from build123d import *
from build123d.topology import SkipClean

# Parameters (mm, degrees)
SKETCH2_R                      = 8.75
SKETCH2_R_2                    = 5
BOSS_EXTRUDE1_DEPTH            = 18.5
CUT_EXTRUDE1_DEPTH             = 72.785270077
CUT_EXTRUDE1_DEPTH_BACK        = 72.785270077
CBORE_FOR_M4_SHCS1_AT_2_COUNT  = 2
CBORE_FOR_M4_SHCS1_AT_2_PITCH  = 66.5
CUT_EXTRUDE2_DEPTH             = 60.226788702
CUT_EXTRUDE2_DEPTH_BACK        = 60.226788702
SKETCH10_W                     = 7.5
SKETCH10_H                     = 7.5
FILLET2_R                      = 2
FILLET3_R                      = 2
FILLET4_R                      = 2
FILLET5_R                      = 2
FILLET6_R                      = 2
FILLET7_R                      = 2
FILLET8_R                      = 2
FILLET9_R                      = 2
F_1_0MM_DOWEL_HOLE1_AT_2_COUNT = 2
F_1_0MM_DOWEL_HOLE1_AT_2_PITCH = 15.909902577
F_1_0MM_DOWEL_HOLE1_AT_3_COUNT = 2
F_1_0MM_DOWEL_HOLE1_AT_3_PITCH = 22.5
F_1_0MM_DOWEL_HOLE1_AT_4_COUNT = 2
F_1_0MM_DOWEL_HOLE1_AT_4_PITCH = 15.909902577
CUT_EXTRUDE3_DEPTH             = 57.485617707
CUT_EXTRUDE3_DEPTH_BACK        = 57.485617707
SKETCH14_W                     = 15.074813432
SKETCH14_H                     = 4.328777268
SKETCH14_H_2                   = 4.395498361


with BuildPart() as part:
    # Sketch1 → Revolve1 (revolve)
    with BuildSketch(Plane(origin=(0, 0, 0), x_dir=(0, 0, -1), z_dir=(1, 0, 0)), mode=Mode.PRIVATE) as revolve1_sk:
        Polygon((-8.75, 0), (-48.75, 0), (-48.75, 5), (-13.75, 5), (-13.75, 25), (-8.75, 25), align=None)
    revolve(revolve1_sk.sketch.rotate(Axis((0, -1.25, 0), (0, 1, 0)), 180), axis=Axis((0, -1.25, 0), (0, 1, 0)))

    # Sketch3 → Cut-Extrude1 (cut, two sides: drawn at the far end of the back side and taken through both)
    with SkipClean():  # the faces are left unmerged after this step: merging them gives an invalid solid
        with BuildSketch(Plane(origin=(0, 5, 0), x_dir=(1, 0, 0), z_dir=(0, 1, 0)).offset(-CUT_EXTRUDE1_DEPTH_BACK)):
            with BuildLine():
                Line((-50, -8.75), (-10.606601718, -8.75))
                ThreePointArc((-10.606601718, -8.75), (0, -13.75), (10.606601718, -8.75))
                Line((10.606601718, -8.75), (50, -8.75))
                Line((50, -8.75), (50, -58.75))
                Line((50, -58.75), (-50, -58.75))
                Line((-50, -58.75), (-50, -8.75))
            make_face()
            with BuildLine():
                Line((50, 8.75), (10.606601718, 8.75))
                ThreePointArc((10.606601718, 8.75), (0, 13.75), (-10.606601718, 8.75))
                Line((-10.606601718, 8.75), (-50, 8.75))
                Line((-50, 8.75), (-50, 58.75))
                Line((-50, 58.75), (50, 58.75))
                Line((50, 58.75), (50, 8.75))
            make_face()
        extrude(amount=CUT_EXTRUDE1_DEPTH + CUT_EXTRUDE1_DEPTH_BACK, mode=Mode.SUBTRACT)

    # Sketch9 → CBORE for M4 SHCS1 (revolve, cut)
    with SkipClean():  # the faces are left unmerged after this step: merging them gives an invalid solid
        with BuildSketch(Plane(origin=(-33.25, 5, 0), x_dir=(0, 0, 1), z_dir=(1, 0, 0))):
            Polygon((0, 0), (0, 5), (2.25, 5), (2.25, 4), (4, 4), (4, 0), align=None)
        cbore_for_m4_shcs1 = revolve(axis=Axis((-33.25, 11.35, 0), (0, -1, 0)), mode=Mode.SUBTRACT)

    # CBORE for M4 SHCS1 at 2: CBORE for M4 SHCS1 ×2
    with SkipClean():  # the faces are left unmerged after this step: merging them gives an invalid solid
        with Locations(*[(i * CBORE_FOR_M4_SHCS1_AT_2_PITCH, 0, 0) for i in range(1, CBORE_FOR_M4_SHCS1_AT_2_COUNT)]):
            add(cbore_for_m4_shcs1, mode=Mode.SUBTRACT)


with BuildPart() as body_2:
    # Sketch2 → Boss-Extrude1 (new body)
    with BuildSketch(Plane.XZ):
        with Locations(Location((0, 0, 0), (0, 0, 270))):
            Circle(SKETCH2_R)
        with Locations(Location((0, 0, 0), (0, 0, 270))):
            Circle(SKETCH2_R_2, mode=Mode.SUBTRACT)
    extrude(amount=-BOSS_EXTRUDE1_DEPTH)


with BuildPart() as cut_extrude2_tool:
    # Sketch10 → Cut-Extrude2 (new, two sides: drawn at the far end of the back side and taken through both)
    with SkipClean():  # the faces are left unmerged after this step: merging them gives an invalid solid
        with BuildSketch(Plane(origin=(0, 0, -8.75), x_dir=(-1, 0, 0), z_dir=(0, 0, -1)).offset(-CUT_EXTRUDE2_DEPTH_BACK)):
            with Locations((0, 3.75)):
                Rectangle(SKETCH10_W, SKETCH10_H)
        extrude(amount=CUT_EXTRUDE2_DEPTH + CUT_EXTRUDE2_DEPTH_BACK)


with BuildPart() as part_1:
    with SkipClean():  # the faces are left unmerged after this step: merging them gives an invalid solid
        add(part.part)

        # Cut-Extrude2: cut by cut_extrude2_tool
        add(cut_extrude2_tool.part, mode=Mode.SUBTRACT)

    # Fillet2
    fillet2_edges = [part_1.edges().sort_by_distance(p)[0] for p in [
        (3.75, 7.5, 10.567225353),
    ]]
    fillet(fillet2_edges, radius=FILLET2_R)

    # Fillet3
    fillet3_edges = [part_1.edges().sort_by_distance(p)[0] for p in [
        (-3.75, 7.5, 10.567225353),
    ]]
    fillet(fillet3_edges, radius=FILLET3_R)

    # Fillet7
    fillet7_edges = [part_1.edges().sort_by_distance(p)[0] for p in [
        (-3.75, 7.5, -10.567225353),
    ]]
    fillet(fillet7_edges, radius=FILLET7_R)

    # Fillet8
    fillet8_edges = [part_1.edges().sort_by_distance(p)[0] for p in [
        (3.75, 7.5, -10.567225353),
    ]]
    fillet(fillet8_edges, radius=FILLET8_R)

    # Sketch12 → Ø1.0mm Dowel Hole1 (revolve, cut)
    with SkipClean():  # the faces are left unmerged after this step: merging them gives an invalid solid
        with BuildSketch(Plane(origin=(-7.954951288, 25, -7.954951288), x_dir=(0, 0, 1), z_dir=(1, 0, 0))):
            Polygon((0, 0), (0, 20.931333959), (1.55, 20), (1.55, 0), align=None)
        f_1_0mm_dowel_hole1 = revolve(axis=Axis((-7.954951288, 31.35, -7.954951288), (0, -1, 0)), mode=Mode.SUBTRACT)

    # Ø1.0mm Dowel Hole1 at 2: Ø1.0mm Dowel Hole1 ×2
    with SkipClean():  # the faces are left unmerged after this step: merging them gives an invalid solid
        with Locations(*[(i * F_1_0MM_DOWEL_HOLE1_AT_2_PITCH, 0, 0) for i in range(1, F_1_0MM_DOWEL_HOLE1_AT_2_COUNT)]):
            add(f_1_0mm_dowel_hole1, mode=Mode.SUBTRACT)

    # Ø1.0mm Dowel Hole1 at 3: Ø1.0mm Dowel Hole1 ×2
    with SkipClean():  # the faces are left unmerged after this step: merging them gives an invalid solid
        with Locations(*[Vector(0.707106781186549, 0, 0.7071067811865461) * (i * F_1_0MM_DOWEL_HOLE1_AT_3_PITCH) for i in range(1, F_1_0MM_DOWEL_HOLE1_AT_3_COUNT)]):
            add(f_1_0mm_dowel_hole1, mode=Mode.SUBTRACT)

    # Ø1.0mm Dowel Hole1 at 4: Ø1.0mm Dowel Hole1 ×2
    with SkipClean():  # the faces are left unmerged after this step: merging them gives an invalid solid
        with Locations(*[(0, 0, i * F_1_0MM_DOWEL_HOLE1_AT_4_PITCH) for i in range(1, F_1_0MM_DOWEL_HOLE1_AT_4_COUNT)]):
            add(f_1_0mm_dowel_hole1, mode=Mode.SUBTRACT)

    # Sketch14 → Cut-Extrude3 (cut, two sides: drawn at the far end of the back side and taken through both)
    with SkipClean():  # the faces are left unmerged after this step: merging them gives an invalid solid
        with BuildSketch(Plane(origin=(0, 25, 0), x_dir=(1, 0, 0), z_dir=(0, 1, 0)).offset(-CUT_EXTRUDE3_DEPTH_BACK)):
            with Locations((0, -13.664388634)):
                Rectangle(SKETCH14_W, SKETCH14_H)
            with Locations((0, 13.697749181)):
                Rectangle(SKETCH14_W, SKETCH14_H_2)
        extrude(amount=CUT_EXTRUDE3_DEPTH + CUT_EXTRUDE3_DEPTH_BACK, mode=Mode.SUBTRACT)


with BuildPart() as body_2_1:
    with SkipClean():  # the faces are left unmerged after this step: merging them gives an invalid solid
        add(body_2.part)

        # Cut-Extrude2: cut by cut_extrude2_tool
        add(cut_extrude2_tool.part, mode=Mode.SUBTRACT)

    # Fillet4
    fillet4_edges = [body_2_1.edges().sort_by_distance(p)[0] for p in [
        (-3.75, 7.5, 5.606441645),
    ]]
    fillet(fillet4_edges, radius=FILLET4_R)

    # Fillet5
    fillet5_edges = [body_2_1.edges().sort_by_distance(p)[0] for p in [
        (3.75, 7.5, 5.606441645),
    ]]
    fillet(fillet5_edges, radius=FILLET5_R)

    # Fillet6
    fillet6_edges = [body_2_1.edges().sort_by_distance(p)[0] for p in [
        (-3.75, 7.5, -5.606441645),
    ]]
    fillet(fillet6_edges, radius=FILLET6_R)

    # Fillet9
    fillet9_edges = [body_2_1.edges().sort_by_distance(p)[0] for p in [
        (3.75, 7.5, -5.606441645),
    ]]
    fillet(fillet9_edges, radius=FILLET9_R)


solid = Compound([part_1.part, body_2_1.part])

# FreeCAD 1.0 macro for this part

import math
import FreeCAD as App
import Part
import Sketcher
from FreeCAD import Vector
Q = App.Units.Quantity


def edges_at(feature, points):
    """Names of the edges that pass closest to the given points."""
    edges = feature.Shape.Edges
    near = lambda p: min(range(len(edges)), key=lambda i: edges[i].distToShape(Part.Vertex(*p))[0])
    return sorted({f"Edge{near(p) + 1}" for p in points})

doc = App.newDocument("Part")
body = doc.addObject("PartDesign::Body", "Body")

# Sketch on YZ plane
sketch1 = body.newObject("Sketcher::SketchObject", "Sketch")
sketch1.AttachmentSupport = (doc.getObject("YZ_Plane"), [""])
sketch1.MapMode = "FlatFace"
sketch1.addGeometry([
    Part.LineSegment(Vector(0, 48.75, 0), Vector(0, 8.75, 0)),  # 0
    Part.LineSegment(Vector(0, 8.75, 0), Vector(25, 8.75, 0)),  # 1
    Part.LineSegment(Vector(25, 8.75, 0), Vector(25, 13.75, 0)),  # 2
    Part.LineSegment(Vector(25, 13.75, 0), Vector(5, 13.75, 0)),  # 3
    Part.LineSegment(Vector(5, 13.75, 0), Vector(5, 48.75, 0)),  # 4
    Part.LineSegment(Vector(5, 48.75, 0), Vector(0, 48.75, 0)),  # 5
], False)
sketch1.addConstraint([
    Sketcher.Constraint("Coincident", 0, 2, 1, 1),
    Sketcher.Constraint("Coincident", 1, 2, 2, 1),
    Sketcher.Constraint("Coincident", 2, 2, 3, 1),
    Sketcher.Constraint("Coincident", 3, 2, 4, 1),
    Sketcher.Constraint("Coincident", 4, 2, 5, 1),
    Sketcher.Constraint("Coincident", 5, 2, 0, 1),
    Sketcher.Constraint("Vertical", 0),
    Sketcher.Constraint("Horizontal", 1),
    Sketcher.Constraint("Vertical", 2),
    Sketcher.Constraint("Horizontal", 3),
    Sketcher.Constraint("Vertical", 4),
    Sketcher.Constraint("Horizontal", 5),
    Sketcher.Constraint("PointOnObject", 0, 2, -2),
    Sketcher.Constraint("Equal", 5, 2),
    Sketcher.Constraint("DistanceX", 1, 1, 1, 2, 25.0),
    Sketcher.Constraint("DistanceX", 3, 2, 3, 1, 20.0),
    Sketcher.Constraint("DistanceY", 0, 2, 0, 1, 40.0),
    Sketcher.Constraint("DistanceY", -1, 1, 0, 2, 8.75),
])
revolution = body.newObject("PartDesign::Revolution", "Revolution")
revolution.Profile = sketch1
revolution.ReferenceAxis = (sketch1, ["H_Axis"])
revolution.Angle = 360

# Sketch on XZ plane
sketch2 = body.newObject("Sketcher::SketchObject", "Sketch001")
sketch2.AttachmentSupport = (doc.getObject("XZ_Plane"), [""])
sketch2.MapMode = "FlatFace"
sketch2.AttachmentOffset = App.Placement(Vector(0, 0, -5), App.Rotation())
sketch2.addGeometry([
    Part.LineSegment(Vector(-10.606602, 8.75, 0), Vector(-50, 8.75, 0)),  # 0
    Part.LineSegment(Vector(-50, 8.75, 0), Vector(-50, 58.75, 0)),  # 1
    Part.LineSegment(Vector(-50, 58.75, 0), Vector(50, 58.75, 0)),  # 2
    Part.LineSegment(Vector(50, 58.75, 0), Vector(50, 8.75, 0)),  # 3
    Part.LineSegment(Vector(50, 8.75, 0), Vector(10.606602, 8.75, 0)),  # 4
    Part.ArcOfCircle(Part.Circle(Vector(0, 0, 0), Vector(0, 0, 1), 13.75), math.radians(39.521196), math.radians(140.478804)),  # 5
    Part.LineSegment(Vector(10.606602, -8.75, 0), Vector(50, -8.75, 0)),  # 6
    Part.LineSegment(Vector(50, -8.75, 0), Vector(50, -58.75, 0)),  # 7
    Part.LineSegment(Vector(50, -58.75, 0), Vector(-50, -58.75, 0)),  # 8
    Part.LineSegment(Vector(-50, -58.75, 0), Vector(-50, -8.75, 0)),  # 9
    Part.LineSegment(Vector(-50, -8.75, 0), Vector(-10.606602, -8.75, 0)),  # 10
    Part.ArcOfCircle(Part.Circle(Vector(0, 0, 0), Vector(0, 0, 1), 13.75), math.radians(-140.478804), math.radians(-39.521196)),  # 11
], False)
sketch2.addConstraint([
    Sketcher.Constraint("Coincident", 0, 2, 1, 1),
    Sketcher.Constraint("Coincident", 1, 2, 2, 1),
    Sketcher.Constraint("Coincident", 2, 2, 3, 1),
    Sketcher.Constraint("Coincident", 3, 2, 4, 1),
    Sketcher.Constraint("Coincident", 4, 2, 5, 1),
    Sketcher.Constraint("Coincident", 5, 2, 0, 1),
    Sketcher.Constraint("Coincident", 6, 2, 7, 1),
    Sketcher.Constraint("Coincident", 7, 2, 8, 1),
    Sketcher.Constraint("Coincident", 8, 2, 9, 1),
    Sketcher.Constraint("Coincident", 9, 2, 10, 1),
    Sketcher.Constraint("Coincident", 10, 2, 11, 1),
    Sketcher.Constraint("Coincident", 11, 2, 6, 1),
    Sketcher.Constraint("Horizontal", 0),
    Sketcher.Constraint("Vertical", 1),
    Sketcher.Constraint("Horizontal", 2),
    Sketcher.Constraint("Vertical", 3),
    Sketcher.Constraint("Horizontal", 4),
    Sketcher.Constraint("Horizontal", 6),
    Sketcher.Constraint("Vertical", 7),
    Sketcher.Constraint("Horizontal", 8),
    Sketcher.Constraint("Vertical", 9),
    Sketcher.Constraint("Horizontal", 10),
    Sketcher.Constraint("Coincident", 5, 3, -1, 1),
    Sketcher.Constraint("Coincident", 11, 3, -1, 1),
    Sketcher.Constraint("Equal", 5, 11),
    Sketcher.Constraint("Symmetric", 0, 2, 6, 2, -1, 1),
    Sketcher.Constraint("Symmetric", 2, 2, 8, 2, -1, 1),
    Sketcher.Constraint("Symmetric", 0, 2, 3, 2, -2),
    Sketcher.Constraint("Horizontal", 6, 2, 9, 2),
    Sketcher.Constraint("DistanceX", 2, 1, 2, 2, 100.0),
    Sketcher.Constraint("DistanceY", 1, 1, 1, 2, 50.0),
    Sketcher.Constraint("Radius", 5, 13.75),
    Sketcher.Constraint("DistanceY", 6, 2, 3, 2, 17.5),
])
pocket1 = body.newObject("PartDesign::Pocket", "Pocket")
pocket1.Profile = sketch2
pocket1.Type = "ThroughAll"
pocket1.Midplane = True

# Sketch on YZ plane
sketch3 = body.newObject("Sketcher::SketchObject", "Sketch002")
sketch3.AttachmentSupport = (doc.getObject("YZ_Plane"), [""])
sketch3.MapMode = "FlatFace"
sketch3.AttachmentOffset = App.Placement(Vector(0, 0, -33.25), App.Rotation())
sketch3.addGeometry([
    Part.LineSegment(Vector(0, 0, 0), Vector(5, 0, 0)),  # 0
    Part.LineSegment(Vector(5, 0, 0), Vector(5, 4, 0)),  # 1
    Part.LineSegment(Vector(5, 4, 0), Vector(1, 4, 0)),  # 2
    Part.LineSegment(Vector(1, 4, 0), Vector(1, 2.25, 0)),  # 3
    Part.LineSegment(Vector(1, 2.25, 0), Vector(0, 2.25, 0)),  # 4
    Part.LineSegment(Vector(0, 2.25, 0), Vector(0, 0, 0)),  # 5
], False)
sketch3.addConstraint([
    Sketcher.Constraint("Coincident", 0, 2, 1, 1),
    Sketcher.Constraint("Coincident", 1, 2, 2, 1),
    Sketcher.Constraint("Coincident", 2, 2, 3, 1),
    Sketcher.Constraint("Coincident", 3, 2, 4, 1),
    Sketcher.Constraint("Coincident", 4, 2, 5, 1),
    Sketcher.Constraint("Coincident", 5, 2, 0, 1),
    Sketcher.Constraint("Horizontal", 0),
    Sketcher.Constraint("Vertical", 1),
    Sketcher.Constraint("Horizontal", 2),
    Sketcher.Constraint("Vertical", 3),
    Sketcher.Constraint("Horizontal", 4),
    Sketcher.Constraint("Vertical", 5),
    Sketcher.Constraint("Coincident", 5, 2, -1, 1),
    Sketcher.Constraint("Equal", 2, 1),
    Sketcher.Constraint("DistanceX", 0, 1, 0, 2, 5.0),
    Sketcher.Constraint("DistanceX", 2, 2, 2, 1, 4.0),
    Sketcher.Constraint("DistanceY", 3, 2, 3, 1, 1.75),
])
groove = body.newObject("PartDesign::Groove", "Groove")
groove.Profile = sketch3
groove.ReferenceAxis = (sketch3, ["H_Axis"])
groove.Angle = 360
doc.recompute()

linearpattern = body.newObject("PartDesign::LinearPattern", "LinearPattern")
linearpattern.Originals = [groove]
linearpattern.Direction = (doc.getObject("X_Axis"), [""])
linearpattern.Mode = "offset"
linearpattern.Offset = 66.5
linearpattern.Occurrences = 2
body.Tip = linearpattern
body2 = doc.addObject("PartDesign::Body", "Body001")

# Sketch on XZ plane
sketch4 = body2.newObject("Sketcher::SketchObject", "Sketch003")
sketch4.AttachmentSupport = (doc.getObject("XZ_Plane001"), [""])
sketch4.MapMode = "FlatFace"
sketch4.addGeometry([
    Part.Circle(Vector(0, 0, 0), Vector(0, 0, 1), 8.75),
    Part.Circle(Vector(0, 0, 0), Vector(0, 0, 1), 5),
], False)
sketch4.addConstraint([
    Sketcher.Constraint("Coincident", 0, 3, -1, 1),
    Sketcher.Constraint("Coincident", 1, 3, -1, 1),
    Sketcher.Constraint("Diameter", 1, 10.0),
    Sketcher.Constraint("Diameter", 0, 17.5),
])
pad1 = body2.newObject("PartDesign::Pad", "Pad")
pad1.Profile = sketch4
pad1.Length = 18.5
pad1.Reversed = True
body3 = doc.addObject("PartDesign::Body", "Body002")

# Sketch on XY plane
sketch5 = body3.newObject("Sketcher::SketchObject", "Sketch004")
sketch5.AttachmentSupport = (doc.getObject("XY_Plane002"), [""])
sketch5.MapMode = "FlatFace"
sketch5.AttachmentOffset = App.Placement(Vector(0, 0, -8.75), App.Rotation())
sketch5.addGeometry([
    Part.LineSegment(Vector(3.75, 7.5, 0), Vector(3.75, 0, 0)),
    Part.LineSegment(Vector(3.75, 0, 0), Vector(-3.75, 0, 0)),
    Part.LineSegment(Vector(-3.75, 0, 0), Vector(-3.75, 7.5, 0)),
    Part.LineSegment(Vector(-3.75, 7.5, 0), Vector(3.75, 7.5, 0)),
], False)
sketch5.addConstraint([
    Sketcher.Constraint("Coincident", 0, 2, 1, 1),
    Sketcher.Constraint("Coincident", 1, 2, 2, 1),
    Sketcher.Constraint("Coincident", 2, 2, 3, 1),
    Sketcher.Constraint("Coincident", 3, 2, 0, 1),
    Sketcher.Constraint("Vertical", 0),
    Sketcher.Constraint("Horizontal", 1),
    Sketcher.Constraint("Vertical", 2),
    Sketcher.Constraint("Horizontal", 3),
    Sketcher.Constraint("Symmetric", 0, 2, 1, 2, -1, 1),
    Sketcher.Constraint("Equal", 3, 0),
    Sketcher.Constraint("DistanceX", 1, 2, 1, 1, 7.5),
])
pad2 = body3.newObject("PartDesign::Pad", "Pad001")
pad2.Profile = sketch5
pad2.Type = "TwoLengths"
pad2.Length = 60.226789
pad2.Length2 = 60.226789
pad2.Reversed = True
doc.recompute()

body4 = doc.addObject("PartDesign::Body", "Body003")
body4.BaseFeature = body3
boolean = body.newObject("PartDesign::Boolean", "Boolean")
boolean.Type = "Cut"
boolean.addObjects([body4])
doc.recompute()

fillet = body.newObject("PartDesign::Fillet", "Fillet")
fillet.Base = (boolean, edges_at(boolean, [(3.75, 7.5, 10.567)]))
fillet.Radius = 2
doc.recompute()

fillet2 = body.newObject("PartDesign::Fillet", "Fillet001")
fillet2.Base = (fillet, edges_at(fillet, [(-3.75, 7.5, 10.567)]))
fillet2.Radius = 2
doc.recompute()

fillet3 = body.newObject("PartDesign::Fillet", "Fillet002")
fillet3.Base = (fillet2, edges_at(fillet2, [(-3.75, 7.5, -10.567)]))
fillet3.Radius = 2
doc.recompute()

fillet4 = body.newObject("PartDesign::Fillet", "Fillet003")
fillet4.Base = (fillet3, edges_at(fillet3, [(3.75, 7.5, -10.567)]))
fillet4.Radius = 2

# Sketch on YZ plane
sketch6 = body.newObject("Sketcher::SketchObject", "Sketch005")
sketch6.AttachmentSupport = (doc.getObject("YZ_Plane"), [""])
sketch6.MapMode = "FlatFace"
sketch6.AttachmentOffset = App.Placement(Vector(0, 0, -7.954951), App.Rotation())
sketch6.addGeometry([
    Part.LineSegment(Vector(4.068666, -7.954951, 0), Vector(25, -7.954951, 0)),
    Part.LineSegment(Vector(25, -7.954951, 0), Vector(25, -6.404951, 0)),
    Part.LineSegment(Vector(25, -6.404951, 0), Vector(5, -6.404951, 0)),
    Part.LineSegment(Vector(5, -6.404951, 0), Vector(4.068666, -7.954951, 0)),
], False)
sketch6.addGeometry(Part.LineSegment(Vector(25, -7.954951, 0), Vector(4.068666, -7.954951, 0)), True)  # axis
sketch6.addConstraint([
    Sketcher.Constraint("Coincident", 0, 2, 1, 1),
    Sketcher.Constraint("Coincident", 1, 2, 2, 1),
    Sketcher.Constraint("Coincident", 2, 2, 3, 1),
    Sketcher.Constraint("Coincident", 3, 2, 0, 1),
    Sketcher.Constraint("Horizontal", 0),
    Sketcher.Constraint("Vertical", 1),
    Sketcher.Constraint("Horizontal", 2),
    Sketcher.Constraint("Horizontal", 4),
    Sketcher.Constraint("Coincident", 4, 1, 0, 2),
    Sketcher.Constraint("Equal", 0, 4),
    Sketcher.Constraint("DistanceX", 2, 2, 2, 1, 20.0),
    Sketcher.Constraint("Angle", 3, Q("-121 deg")),
    Sketcher.Constraint("DistanceX", -1, 1, 0, 2, 25.0),
    Sketcher.Constraint("DistanceY", 1, 1, 1, 2, 1.55),
    Sketcher.Constraint("DistanceY", 0, 2, -1, 1, 7.954951),
])
groove2 = body.newObject("PartDesign::Groove", "Groove001")
groove2.Profile = sketch6
groove2.ReferenceAxis = (sketch6, ["Axis0"])
groove2.Angle = 360
doc.recompute()

linearpattern2 = body.newObject("PartDesign::LinearPattern", "LinearPattern001")
linearpattern2.Originals = [groove2]
linearpattern2.Direction = (doc.getObject("X_Axis"), [""])
linearpattern2.Mode = "offset"
linearpattern2.Offset = 15.909903
linearpattern2.Occurrences = 2
body.Tip = linearpattern2
doc.recompute()

datumline = body.newObject("PartDesign::Line", "DatumLine")
datumline.Placement = App.Placement(Vector(0, 0, 0), App.Rotation(Vector(0, 0, 1), Vector(0.707106781, 0, 0.707106781)))
linearpattern3 = body.newObject("PartDesign::LinearPattern", "LinearPattern002")
linearpattern3.Originals = [groove2]
linearpattern3.Direction = (datumline, [""])
linearpattern3.Mode = "offset"
linearpattern3.Offset = 22.5
linearpattern3.Occurrences = 2
body.Tip = linearpattern3
doc.recompute()

linearpattern4 = body.newObject("PartDesign::LinearPattern", "LinearPattern003")
linearpattern4.Originals = [groove2]
linearpattern4.Direction = (doc.getObject("Z_Axis"), [""])
linearpattern4.Mode = "offset"
linearpattern4.Offset = 15.909903
linearpattern4.Occurrences = 2
body.Tip = linearpattern4

# Sketch on XZ plane
sketch7 = body.newObject("Sketcher::SketchObject", "Sketch006")
sketch7.AttachmentSupport = (doc.getObject("XZ_Plane"), [""])
sketch7.MapMode = "FlatFace"
sketch7.AttachmentOffset = App.Placement(Vector(0, 0, -25), App.Rotation())
sketch7.addGeometry([
    Part.LineSegment(Vector(-7.537407, 11.5, 0), Vector(-7.537407, 15.828777, 0)),  # 0
    Part.LineSegment(Vector(-7.537407, 15.828777, 0), Vector(7.537407, 15.828777, 0)),  # 1
    Part.LineSegment(Vector(7.537407, 15.828777, 0), Vector(7.537407, 11.5, 0)),  # 2
    Part.LineSegment(Vector(7.537407, 11.5, 0), Vector(-7.537407, 11.5, 0)),  # 3
    Part.LineSegment(Vector(-7.537407, -15.895498, 0), Vector(-7.537407, -11.5, 0)),  # 4
    Part.LineSegment(Vector(-7.537407, -11.5, 0), Vector(7.537407, -11.5, 0)),  # 5
    Part.LineSegment(Vector(7.537407, -11.5, 0), Vector(7.537407, -15.895498, 0)),  # 6
    Part.LineSegment(Vector(7.537407, -15.895498, 0), Vector(-7.537407, -15.895498, 0)),  # 7
], False)
sketch7.addConstraint([
    Sketcher.Constraint("Coincident", 0, 2, 1, 1),
    Sketcher.Constraint("Coincident", 1, 2, 2, 1),
    Sketcher.Constraint("Coincident", 2, 2, 3, 1),
    Sketcher.Constraint("Coincident", 3, 2, 0, 1),
    Sketcher.Constraint("Coincident", 4, 2, 5, 1),
    Sketcher.Constraint("Coincident", 5, 2, 6, 1),
    Sketcher.Constraint("Coincident", 6, 2, 7, 1),
    Sketcher.Constraint("Coincident", 7, 2, 4, 1),
    Sketcher.Constraint("Vertical", 0),
    Sketcher.Constraint("Horizontal", 1),
    Sketcher.Constraint("Vertical", 2),
    Sketcher.Constraint("Horizontal", 3),
    Sketcher.Constraint("Vertical", 4),
    Sketcher.Constraint("Horizontal", 5),
    Sketcher.Constraint("Vertical", 6),
    Sketcher.Constraint("Horizontal", 7),
    Sketcher.Constraint("Symmetric", 2, 2, 4, 2, -1, 1),
    Sketcher.Constraint("Vertical", 3, 2, 4, 2),
    Sketcher.Constraint("Vertical", 2, 2, 5, 2),
    Sketcher.Constraint("DistanceY", 4, 2, 3, 2, 23.0),
    Sketcher.Constraint("DistanceY", 4, 1, 4, 2, 4.395498),
    Sketcher.Constraint("DistanceX", 1, 1, 1, 2, 15.074813),
    Sketcher.Constraint("DistanceY", 0, 1, 0, 2, 4.328777),
])
pocket2 = body.newObject("PartDesign::Pocket", "Pocket001")
pocket2.Profile = sketch7
pocket2.Type = "ThroughAll"
pocket2.Midplane = True
doc.recompute()

boolean2 = body2.newObject("PartDesign::Boolean", "Boolean001")
boolean2.Type = "Cut"
boolean2.addObjects([body3])
doc.recompute()

fillet5 = body2.newObject("PartDesign::Fillet", "Fillet004")
fillet5.Base = (boolean2, edges_at(boolean2, [(-3.75, 7.5, 5.606)]))
fillet5.Radius = 2
doc.recompute()

fillet6 = body2.newObject("PartDesign::Fillet", "Fillet005")
fillet6.Base = (fillet5, edges_at(fillet5, [(3.75, 7.5, 5.606)]))
fillet6.Radius = 2
doc.recompute()

fillet7 = body2.newObject("PartDesign::Fillet", "Fillet006")
fillet7.Base = (fillet6, edges_at(fillet6, [(-3.75, 7.5, -5.606)]))
fillet7.Radius = 2
doc.recompute()

fillet8 = body2.newObject("PartDesign::Fillet", "Fillet007")
fillet8.Base = (fillet7, edges_at(fillet7, [(3.75, 7.5, -5.606)]))
fillet8.Radius = 2

doc.recompute()
